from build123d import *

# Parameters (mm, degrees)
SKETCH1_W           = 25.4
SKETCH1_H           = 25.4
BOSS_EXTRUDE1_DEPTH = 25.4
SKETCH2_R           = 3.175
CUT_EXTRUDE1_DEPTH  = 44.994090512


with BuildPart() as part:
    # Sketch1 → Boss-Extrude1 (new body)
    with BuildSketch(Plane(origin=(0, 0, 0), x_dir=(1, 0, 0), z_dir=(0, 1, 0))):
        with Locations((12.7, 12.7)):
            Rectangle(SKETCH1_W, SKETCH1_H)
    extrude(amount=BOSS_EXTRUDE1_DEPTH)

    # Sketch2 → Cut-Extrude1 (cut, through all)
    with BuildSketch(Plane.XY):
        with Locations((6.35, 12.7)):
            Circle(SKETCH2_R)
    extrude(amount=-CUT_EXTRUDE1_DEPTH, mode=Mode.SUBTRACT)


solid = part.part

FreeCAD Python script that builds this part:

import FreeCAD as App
import Part
import Sketcher
from FreeCAD import Vector
Q = App.Units.Quantity

doc = App.newDocument("Part")
body = doc.addObject("PartDesign::Body", "Body")

sketch1 = doc.addObject("Sketcher::SketchObject", "Sketch")
body.addObject(sketch1)
sketch1.AttachmentSupport = (doc.XZ_Plane, [""])
sketch1.MapMode = "FlatFace"
sketch1.addGeometry([
    Part.LineSegment(Vector(0, -25, 0), Vector(0, 0, 0)),
    Part.LineSegment(Vector(0, 0, 0), Vector(25, 0, 0)),
    Part.LineSegment(Vector(25, 0, 0), Vector(25, -25, 0)),
    Part.LineSegment(Vector(25, -25, 0), Vector(0, -25, 0)),
], False)
sketch1.addConstraint([
    Sketcher.Constraint("Coincident", 0, 2, 1, 1),
    Sketcher.Constraint("Coincident", 1, 2, 2, 1),
    Sketcher.Constraint("Coincident", 2, 2, 3, 1),
    Sketcher.Constraint("Coincident", 3, 2, 0, 1),
    Sketcher.Constraint("Vertical", 0),
    Sketcher.Constraint("Horizontal", 1),
    Sketcher.Constraint("Vertical", 2),
    Sketcher.Constraint("Horizontal", 3),
    Sketcher.Constraint("Coincident", 0, 2, -1, 1),
    Sketcher.Constraint("Equal", 3, 0),
    Sketcher.Constraint("DistanceX", 1, 1, 1, 2, Q("1 in")),
])
pad1 = doc.addObject("PartDesign::Pad", "Pad")
body.addObject(pad1)
pad1.Profile = sketch1
pad1.Length = Q("1 in")
pad1.Reversed = True

sketch2 = doc.addObject("Sketcher::SketchObject", "Sketch001")
body.addObject(sketch2)
sketch2.AttachmentSupport = (doc.XY_Plane, [""])
sketch2.MapMode = "FlatFace"
sketch2.addGeometry(Part.Circle(Vector(6.3, 12.7, 0), Vector(0, 0, 1), 3.2), False)
sketch2.addConstraint([
    Sketcher.Constraint("Diameter", 0, Q("0.25 in")),
    Sketcher.Constraint("DistanceY", -1, 1, 0, 3, Q("0.5 in")),
    Sketcher.Constraint("DistanceX", -1, 1, 0, 3, Q("0.25 in")),
])
pocket1 = doc.addObject("PartDesign::Pocket", "Pocket")
body.addObject(pocket1)
pocket1.Profile = sketch2
pocket1.Type = "ThroughAll"

doc.recompute()
